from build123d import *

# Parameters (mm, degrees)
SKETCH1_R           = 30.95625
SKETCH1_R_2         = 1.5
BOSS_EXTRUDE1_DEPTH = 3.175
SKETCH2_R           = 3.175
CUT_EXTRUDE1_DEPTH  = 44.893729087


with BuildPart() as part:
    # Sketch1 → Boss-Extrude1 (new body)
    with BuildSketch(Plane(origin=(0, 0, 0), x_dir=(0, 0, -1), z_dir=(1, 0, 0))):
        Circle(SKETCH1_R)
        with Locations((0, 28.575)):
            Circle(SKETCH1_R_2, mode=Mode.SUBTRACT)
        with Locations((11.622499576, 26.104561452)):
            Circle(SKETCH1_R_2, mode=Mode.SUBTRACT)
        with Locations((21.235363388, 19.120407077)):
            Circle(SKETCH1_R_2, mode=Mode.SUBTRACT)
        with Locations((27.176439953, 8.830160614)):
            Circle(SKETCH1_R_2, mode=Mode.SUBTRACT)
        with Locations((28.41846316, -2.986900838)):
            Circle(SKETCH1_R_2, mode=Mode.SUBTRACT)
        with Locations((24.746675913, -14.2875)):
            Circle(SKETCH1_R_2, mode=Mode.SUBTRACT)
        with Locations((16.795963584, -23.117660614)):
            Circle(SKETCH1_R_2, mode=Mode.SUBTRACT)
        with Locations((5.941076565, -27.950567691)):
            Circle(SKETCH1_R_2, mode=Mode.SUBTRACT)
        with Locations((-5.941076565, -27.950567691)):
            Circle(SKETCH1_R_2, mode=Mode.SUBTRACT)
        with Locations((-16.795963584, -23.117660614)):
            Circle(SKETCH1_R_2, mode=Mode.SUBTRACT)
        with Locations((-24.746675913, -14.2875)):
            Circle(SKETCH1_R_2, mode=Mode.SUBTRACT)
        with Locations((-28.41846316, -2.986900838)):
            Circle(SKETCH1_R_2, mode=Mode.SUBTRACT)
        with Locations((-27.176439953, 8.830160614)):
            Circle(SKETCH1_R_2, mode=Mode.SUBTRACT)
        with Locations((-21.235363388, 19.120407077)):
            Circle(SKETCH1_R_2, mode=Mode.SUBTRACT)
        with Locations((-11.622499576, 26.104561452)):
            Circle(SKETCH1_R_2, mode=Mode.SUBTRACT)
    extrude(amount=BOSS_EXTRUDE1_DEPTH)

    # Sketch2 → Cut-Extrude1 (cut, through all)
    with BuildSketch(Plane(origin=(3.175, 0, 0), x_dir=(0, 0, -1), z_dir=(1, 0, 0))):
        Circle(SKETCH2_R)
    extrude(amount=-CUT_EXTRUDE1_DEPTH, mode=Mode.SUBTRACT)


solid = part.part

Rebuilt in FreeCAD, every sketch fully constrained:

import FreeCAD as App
import Part
import Sketcher
from FreeCAD import Vector
Q = App.Units.Quantity

doc = App.newDocument("Part")
body = doc.addObject("PartDesign::Body", "Body")

# Sketch on YZ plane
sketch1 = body.newObject("Sketcher::SketchObject", "Sketch")
sketch1.AttachmentSupport = (doc.getObject("YZ_Plane"), [""])
sketch1.MapMode = "FlatFace"
sketch1.addGeometry([
    Part.Circle(Vector(0, 0, 0), Vector(0, 0, 1), 31),  # 0
    Part.Circle(Vector(-23.1, 16.8, 0), Vector(0, 0, 1), 1.5),  # 1
    Part.Circle(Vector(-28, 5.9, 0), Vector(0, 0, 1), 1.5),  # 2
    Part.Circle(Vector(-14.3, 24.7, 0), Vector(0, 0, 1), 1.5),  # 3
    Part.Circle(Vector(-3, 28.4, 0), Vector(0, 0, 1), 1.5),  # 4
    Part.Circle(Vector(-28, -5.9, 0), Vector(0, 0, 1), 1.5),  # 5
    Part.Circle(Vector(-23.1, -16.8, 0), Vector(0, 0, 1), 1.5),  # 6
    Part.Circle(Vector(-14.3, -24.7, 0), Vector(0, 0, 1), 1.5),  # 7
    Part.Circle(Vector(-3, -28.4, 0), Vector(0, 0, 1), 1.5),  # 8
    Part.Circle(Vector(8.8, 27.2, 0), Vector(0, 0, 1), 1.5),  # 9
    Part.Circle(Vector(19.1, 21.2, 0), Vector(0, 0, 1), 1.5),  # 10
    Part.Circle(Vector(26.1, 11.6, 0), Vector(0, 0, 1), 1.5),  # 11
    Part.Circle(Vector(8.8, -27.2, 0), Vector(0, 0, 1), 1.5),  # 12
    Part.Circle(Vector(28.6, 0, 0), Vector(0, 0, 1), 1.5),  # 13
    Part.Circle(Vector(26.1, -11.6, 0), Vector(0, 0, 1), 1.5),  # 14
    Part.Circle(Vector(19.1, -21.2, 0), Vector(0, 0, 1), 1.5),  # 15
], False)
sketch1.addConstraint([
    Sketcher.Constraint("Coincident", 0, 3, -1, 1),
    Sketcher.Constraint("Equal", 1, 2),
    Sketcher.Constraint("Equal", 2, 3),
    Sketcher.Constraint("Equal", 3, 4),
    Sketcher.Constraint("Equal", 4, 5),
    Sketcher.Constraint("Equal", 5, 6),
    Sketcher.Constraint("Equal", 6, 7),
    Sketcher.Constraint("Equal", 7, 8),
    Sketcher.Constraint("Equal", 8, 9),
    Sketcher.Constraint("Equal", 9, 10),
    Sketcher.Constraint("Equal", 10, 11),
    Sketcher.Constraint("Equal", 11, 12),
    Sketcher.Constraint("Equal", 12, 13),
    Sketcher.Constraint("Equal", 13, 14),
    Sketcher.Constraint("Equal", 14, 15),
    Sketcher.Constraint("Symmetric", 2, 3, 5, 3, -1),
    Sketcher.Constraint("Symmetric", 1, 3, 6, 3, -1),
    Sketcher.Constraint("Symmetric", 3, 3, 7, 3, -1),
    Sketcher.Constraint("Symmetric", 4, 3, 8, 3, -1),
    Sketcher.Constraint("Symmetric", 9, 3, 12, 3, -1),
    Sketcher.Constraint("Symmetric", 11, 3, 14, 3, -1),
    Sketcher.Constraint("Symmetric", 10, 3, 15, 3, -1),
    Sketcher.Constraint("PointOnObject", 13, 3, -1),
    Sketcher.Constraint("Diameter", 0, Q("2.4375 in")),
    Sketcher.Constraint("Diameter", 1, 3.0),
    Sketcher.Constraint("DistanceX", 3, 3, -1, 1, Q("0.5625 in")),
    Sketcher.Constraint("DistanceX", -1, 1, 13, 3, Q("1.125 in")),
    Sketcher.Constraint("DistanceY", 11, 3, 3, 3, Q("0.5166999 in")),
    Sketcher.Constraint("DistanceX", 4, 3, -1, 1, 2.986901),
    Sketcher.Constraint("DistanceY", -1, 1, 11, 3, 11.6225),
    Sketcher.Constraint("DistanceY", 2, 3, 3, 3, 18.805599),
    Sketcher.Constraint("DistanceY", 1, 3, 4, 3, 11.6225),
    Sketcher.Constraint("DistanceY", 10, 3, 4, 3, 7.1831),
    Sketcher.Constraint("DistanceX", 9, 3, 11, 3, 17.274401),
    Sketcher.Constraint("DistanceX", 1, 3, -1, 1, 23.117661),
    Sketcher.Constraint("DistanceX", -1, 1, 9, 3, 8.830161),
    Sketcher.Constraint("DistanceY", -1, 1, 9, 3, 27.17644),
    Sketcher.Constraint("DistanceY", 5, 3, 1, 3, 22.73704),
    Sketcher.Constraint("DistanceX", 2, 3, 9, 3, 36.780728),
    Sketcher.Constraint("DistanceX", -1, 1, 10, 3, 19.120407),
])
pad1 = body.newObject("PartDesign::Pad", "Pad")
pad1.Profile = sketch1
pad1.Length = Q("0.125 in")

# Sketch on YZ plane
sketch2 = body.newObject("Sketcher::SketchObject", "Sketch001")
sketch2.AttachmentSupport = (doc.getObject("YZ_Plane"), [""])
sketch2.MapMode = "FlatFace"
sketch2.AttachmentOffset = App.Placement(Vector(0, 0, 0.125 * 25.4), App.Rotation())
sketch2.addGeometry(Part.Circle(Vector(0, 0, 0), Vector(0, 0, 1), 3.2), False)
sketch2.addConstraint([
    Sketcher.Constraint("Coincident", 0, 3, -1, 1),
    Sketcher.Constraint("Diameter", 0, Q("0.25 in")),
])
pocket1 = body.newObject("PartDesign::Pocket", "Pocket")
pocket1.Profile = sketch2
pocket1.Type = "ThroughAll"

doc.recompute()
